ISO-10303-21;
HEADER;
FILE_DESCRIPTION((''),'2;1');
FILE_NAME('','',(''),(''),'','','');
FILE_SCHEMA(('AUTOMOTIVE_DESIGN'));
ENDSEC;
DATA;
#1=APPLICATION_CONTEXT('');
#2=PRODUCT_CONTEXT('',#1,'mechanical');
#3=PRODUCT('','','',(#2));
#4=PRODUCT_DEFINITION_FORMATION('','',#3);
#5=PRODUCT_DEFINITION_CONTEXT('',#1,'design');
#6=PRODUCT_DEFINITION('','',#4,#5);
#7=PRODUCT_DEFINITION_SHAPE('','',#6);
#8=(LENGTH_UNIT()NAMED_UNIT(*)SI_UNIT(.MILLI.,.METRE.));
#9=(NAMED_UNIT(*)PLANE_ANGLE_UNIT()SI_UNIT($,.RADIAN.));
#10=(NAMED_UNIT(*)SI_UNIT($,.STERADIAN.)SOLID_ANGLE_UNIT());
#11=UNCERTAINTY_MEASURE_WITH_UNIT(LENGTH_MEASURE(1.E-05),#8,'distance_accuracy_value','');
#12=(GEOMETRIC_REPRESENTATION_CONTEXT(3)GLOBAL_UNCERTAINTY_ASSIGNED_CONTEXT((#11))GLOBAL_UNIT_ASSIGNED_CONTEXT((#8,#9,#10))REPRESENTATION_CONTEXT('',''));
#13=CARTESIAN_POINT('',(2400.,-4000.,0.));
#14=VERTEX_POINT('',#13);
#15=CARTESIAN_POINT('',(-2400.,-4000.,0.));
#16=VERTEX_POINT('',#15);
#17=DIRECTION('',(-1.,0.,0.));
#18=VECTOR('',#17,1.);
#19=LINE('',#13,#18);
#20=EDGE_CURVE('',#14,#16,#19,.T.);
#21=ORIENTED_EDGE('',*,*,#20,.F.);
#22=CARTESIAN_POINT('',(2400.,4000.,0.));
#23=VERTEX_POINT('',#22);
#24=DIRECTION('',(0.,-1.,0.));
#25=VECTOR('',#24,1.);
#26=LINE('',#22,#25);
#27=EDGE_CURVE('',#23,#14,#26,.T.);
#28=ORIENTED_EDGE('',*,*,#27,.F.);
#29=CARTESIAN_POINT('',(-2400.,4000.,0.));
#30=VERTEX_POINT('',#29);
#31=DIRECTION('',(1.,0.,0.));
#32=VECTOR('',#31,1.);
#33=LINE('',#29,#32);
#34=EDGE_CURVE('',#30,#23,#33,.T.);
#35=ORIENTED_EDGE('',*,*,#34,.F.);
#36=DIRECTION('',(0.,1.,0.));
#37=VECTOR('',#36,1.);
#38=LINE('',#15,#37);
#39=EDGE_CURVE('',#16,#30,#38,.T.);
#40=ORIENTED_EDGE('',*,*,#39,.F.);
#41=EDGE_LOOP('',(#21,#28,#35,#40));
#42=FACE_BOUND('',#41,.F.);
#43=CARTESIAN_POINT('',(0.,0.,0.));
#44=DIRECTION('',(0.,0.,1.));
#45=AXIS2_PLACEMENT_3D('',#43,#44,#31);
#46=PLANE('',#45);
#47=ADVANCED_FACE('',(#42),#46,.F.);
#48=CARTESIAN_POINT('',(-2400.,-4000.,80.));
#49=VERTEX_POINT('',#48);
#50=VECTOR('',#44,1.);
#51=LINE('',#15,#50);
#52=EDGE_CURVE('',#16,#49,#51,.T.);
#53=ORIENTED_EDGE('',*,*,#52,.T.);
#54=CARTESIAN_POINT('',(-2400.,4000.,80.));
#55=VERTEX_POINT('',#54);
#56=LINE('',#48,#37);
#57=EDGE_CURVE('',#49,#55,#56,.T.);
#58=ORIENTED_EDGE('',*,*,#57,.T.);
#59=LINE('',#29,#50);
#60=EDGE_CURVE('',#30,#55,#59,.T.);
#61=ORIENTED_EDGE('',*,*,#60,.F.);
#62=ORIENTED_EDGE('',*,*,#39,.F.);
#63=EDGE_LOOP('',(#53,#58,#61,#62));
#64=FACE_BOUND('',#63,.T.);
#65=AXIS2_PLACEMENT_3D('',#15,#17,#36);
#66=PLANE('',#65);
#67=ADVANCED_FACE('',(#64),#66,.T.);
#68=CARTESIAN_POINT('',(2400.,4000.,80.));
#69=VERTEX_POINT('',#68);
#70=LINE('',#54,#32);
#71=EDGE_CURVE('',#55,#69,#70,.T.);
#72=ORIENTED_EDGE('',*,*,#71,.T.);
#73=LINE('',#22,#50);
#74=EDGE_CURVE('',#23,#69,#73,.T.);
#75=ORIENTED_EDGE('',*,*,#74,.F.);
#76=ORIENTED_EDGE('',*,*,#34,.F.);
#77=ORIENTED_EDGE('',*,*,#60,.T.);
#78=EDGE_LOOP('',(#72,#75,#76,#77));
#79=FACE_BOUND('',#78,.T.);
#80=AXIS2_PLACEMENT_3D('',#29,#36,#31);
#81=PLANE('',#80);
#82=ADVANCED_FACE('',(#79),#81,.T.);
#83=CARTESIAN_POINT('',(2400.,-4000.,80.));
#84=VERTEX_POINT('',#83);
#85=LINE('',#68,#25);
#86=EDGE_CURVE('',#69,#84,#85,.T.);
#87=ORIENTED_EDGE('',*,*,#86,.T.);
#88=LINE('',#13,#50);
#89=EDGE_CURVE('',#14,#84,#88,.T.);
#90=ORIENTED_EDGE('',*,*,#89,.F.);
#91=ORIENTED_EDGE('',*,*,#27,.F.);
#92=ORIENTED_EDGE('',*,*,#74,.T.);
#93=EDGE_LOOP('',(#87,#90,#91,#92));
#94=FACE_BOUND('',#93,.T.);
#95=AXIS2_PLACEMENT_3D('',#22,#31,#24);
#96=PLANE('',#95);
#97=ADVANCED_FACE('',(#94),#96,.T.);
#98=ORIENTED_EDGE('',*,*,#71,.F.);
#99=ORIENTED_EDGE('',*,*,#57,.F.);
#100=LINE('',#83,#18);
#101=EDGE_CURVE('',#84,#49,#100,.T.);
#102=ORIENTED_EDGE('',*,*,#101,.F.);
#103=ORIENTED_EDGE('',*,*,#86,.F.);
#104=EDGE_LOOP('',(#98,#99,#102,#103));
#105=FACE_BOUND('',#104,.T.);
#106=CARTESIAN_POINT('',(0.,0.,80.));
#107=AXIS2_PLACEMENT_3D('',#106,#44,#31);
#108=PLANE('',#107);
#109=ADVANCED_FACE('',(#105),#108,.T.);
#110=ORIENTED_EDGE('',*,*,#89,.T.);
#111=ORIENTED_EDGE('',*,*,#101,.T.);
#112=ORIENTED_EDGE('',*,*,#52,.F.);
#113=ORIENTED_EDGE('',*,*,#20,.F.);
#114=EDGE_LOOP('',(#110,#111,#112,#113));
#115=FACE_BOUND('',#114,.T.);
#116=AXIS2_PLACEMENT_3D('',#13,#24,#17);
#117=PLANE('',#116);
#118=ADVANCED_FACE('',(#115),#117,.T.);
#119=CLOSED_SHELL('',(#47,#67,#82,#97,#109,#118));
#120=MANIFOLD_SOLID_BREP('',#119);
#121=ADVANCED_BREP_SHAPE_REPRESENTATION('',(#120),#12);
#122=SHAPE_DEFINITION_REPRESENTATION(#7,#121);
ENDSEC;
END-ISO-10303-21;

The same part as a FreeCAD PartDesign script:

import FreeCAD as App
import Part
import Sketcher
from FreeCAD import Vector
Q = App.Units.Quantity

doc = App.newDocument("Part")
params = doc.addObject("Spreadsheet::Sheet", "Params")
for row, (alias, value) in enumerate([
    ("sketch1_width", "4800 mm"),
    ("sketch1_height", "8000 mm"),
    ("pad1_length", "80 mm"),
], start=1):
    params.set(f"A{row}", alias)
    params.set(f"B{row}", "=" + value)
    params.setAlias(f"B{row}", alias)

body = doc.addObject("PartDesign::Body", "Body")

# Sketch on XY plane
sketch1 = body.newObject("Sketcher::SketchObject", "Sketch")
sketch1.AttachmentSupport = (doc.getObject("XY_Plane"), [""])
sketch1.MapMode = "FlatFace"
sketch1.addGeometry([
    Part.LineSegment(Vector(-2400, -4000, 0), Vector(2400, -4000, 0)),
    Part.LineSegment(Vector(2400, -4000, 0), Vector(2400, 4000, 0)),
    Part.LineSegment(Vector(2400, 4000, 0), Vector(-2400, 4000, 0)),
    Part.LineSegment(Vector(-2400, 4000, 0), Vector(-2400, -4000, 0)),
], False)
sketch1.addConstraint([
    Sketcher.Constraint("Coincident", 0, 2, 1, 1),
    Sketcher.Constraint("Coincident", 1, 2, 2, 1),
    Sketcher.Constraint("Coincident", 2, 2, 3, 1),
    Sketcher.Constraint("Coincident", 3, 2, 0, 1),
    Sketcher.Constraint("Horizontal", 0),
    Sketcher.Constraint("Vertical", 1),
    Sketcher.Constraint("Horizontal", 2),
    Sketcher.Constraint("Vertical", 3),
    Sketcher.Constraint("Symmetric", 0, 2, 2, 2, -1, 1),
    Sketcher.Constraint("DistanceX", 0, 1, 0, 2, Q("4800 mm")),
    Sketcher.Constraint("DistanceY", 1, 1, 1, 2, Q("8000 mm")),
])
sketch1.setExpression("Constraints[9]", "Params.sketch1_width")
sketch1.setExpression("Constraints[10]", "Params.sketch1_height")
pad1 = body.newObject("PartDesign::Pad", "Pad")
pad1.Profile = sketch1
pad1.setExpression("Length", "Params.pad1_length")

doc.recompute()
